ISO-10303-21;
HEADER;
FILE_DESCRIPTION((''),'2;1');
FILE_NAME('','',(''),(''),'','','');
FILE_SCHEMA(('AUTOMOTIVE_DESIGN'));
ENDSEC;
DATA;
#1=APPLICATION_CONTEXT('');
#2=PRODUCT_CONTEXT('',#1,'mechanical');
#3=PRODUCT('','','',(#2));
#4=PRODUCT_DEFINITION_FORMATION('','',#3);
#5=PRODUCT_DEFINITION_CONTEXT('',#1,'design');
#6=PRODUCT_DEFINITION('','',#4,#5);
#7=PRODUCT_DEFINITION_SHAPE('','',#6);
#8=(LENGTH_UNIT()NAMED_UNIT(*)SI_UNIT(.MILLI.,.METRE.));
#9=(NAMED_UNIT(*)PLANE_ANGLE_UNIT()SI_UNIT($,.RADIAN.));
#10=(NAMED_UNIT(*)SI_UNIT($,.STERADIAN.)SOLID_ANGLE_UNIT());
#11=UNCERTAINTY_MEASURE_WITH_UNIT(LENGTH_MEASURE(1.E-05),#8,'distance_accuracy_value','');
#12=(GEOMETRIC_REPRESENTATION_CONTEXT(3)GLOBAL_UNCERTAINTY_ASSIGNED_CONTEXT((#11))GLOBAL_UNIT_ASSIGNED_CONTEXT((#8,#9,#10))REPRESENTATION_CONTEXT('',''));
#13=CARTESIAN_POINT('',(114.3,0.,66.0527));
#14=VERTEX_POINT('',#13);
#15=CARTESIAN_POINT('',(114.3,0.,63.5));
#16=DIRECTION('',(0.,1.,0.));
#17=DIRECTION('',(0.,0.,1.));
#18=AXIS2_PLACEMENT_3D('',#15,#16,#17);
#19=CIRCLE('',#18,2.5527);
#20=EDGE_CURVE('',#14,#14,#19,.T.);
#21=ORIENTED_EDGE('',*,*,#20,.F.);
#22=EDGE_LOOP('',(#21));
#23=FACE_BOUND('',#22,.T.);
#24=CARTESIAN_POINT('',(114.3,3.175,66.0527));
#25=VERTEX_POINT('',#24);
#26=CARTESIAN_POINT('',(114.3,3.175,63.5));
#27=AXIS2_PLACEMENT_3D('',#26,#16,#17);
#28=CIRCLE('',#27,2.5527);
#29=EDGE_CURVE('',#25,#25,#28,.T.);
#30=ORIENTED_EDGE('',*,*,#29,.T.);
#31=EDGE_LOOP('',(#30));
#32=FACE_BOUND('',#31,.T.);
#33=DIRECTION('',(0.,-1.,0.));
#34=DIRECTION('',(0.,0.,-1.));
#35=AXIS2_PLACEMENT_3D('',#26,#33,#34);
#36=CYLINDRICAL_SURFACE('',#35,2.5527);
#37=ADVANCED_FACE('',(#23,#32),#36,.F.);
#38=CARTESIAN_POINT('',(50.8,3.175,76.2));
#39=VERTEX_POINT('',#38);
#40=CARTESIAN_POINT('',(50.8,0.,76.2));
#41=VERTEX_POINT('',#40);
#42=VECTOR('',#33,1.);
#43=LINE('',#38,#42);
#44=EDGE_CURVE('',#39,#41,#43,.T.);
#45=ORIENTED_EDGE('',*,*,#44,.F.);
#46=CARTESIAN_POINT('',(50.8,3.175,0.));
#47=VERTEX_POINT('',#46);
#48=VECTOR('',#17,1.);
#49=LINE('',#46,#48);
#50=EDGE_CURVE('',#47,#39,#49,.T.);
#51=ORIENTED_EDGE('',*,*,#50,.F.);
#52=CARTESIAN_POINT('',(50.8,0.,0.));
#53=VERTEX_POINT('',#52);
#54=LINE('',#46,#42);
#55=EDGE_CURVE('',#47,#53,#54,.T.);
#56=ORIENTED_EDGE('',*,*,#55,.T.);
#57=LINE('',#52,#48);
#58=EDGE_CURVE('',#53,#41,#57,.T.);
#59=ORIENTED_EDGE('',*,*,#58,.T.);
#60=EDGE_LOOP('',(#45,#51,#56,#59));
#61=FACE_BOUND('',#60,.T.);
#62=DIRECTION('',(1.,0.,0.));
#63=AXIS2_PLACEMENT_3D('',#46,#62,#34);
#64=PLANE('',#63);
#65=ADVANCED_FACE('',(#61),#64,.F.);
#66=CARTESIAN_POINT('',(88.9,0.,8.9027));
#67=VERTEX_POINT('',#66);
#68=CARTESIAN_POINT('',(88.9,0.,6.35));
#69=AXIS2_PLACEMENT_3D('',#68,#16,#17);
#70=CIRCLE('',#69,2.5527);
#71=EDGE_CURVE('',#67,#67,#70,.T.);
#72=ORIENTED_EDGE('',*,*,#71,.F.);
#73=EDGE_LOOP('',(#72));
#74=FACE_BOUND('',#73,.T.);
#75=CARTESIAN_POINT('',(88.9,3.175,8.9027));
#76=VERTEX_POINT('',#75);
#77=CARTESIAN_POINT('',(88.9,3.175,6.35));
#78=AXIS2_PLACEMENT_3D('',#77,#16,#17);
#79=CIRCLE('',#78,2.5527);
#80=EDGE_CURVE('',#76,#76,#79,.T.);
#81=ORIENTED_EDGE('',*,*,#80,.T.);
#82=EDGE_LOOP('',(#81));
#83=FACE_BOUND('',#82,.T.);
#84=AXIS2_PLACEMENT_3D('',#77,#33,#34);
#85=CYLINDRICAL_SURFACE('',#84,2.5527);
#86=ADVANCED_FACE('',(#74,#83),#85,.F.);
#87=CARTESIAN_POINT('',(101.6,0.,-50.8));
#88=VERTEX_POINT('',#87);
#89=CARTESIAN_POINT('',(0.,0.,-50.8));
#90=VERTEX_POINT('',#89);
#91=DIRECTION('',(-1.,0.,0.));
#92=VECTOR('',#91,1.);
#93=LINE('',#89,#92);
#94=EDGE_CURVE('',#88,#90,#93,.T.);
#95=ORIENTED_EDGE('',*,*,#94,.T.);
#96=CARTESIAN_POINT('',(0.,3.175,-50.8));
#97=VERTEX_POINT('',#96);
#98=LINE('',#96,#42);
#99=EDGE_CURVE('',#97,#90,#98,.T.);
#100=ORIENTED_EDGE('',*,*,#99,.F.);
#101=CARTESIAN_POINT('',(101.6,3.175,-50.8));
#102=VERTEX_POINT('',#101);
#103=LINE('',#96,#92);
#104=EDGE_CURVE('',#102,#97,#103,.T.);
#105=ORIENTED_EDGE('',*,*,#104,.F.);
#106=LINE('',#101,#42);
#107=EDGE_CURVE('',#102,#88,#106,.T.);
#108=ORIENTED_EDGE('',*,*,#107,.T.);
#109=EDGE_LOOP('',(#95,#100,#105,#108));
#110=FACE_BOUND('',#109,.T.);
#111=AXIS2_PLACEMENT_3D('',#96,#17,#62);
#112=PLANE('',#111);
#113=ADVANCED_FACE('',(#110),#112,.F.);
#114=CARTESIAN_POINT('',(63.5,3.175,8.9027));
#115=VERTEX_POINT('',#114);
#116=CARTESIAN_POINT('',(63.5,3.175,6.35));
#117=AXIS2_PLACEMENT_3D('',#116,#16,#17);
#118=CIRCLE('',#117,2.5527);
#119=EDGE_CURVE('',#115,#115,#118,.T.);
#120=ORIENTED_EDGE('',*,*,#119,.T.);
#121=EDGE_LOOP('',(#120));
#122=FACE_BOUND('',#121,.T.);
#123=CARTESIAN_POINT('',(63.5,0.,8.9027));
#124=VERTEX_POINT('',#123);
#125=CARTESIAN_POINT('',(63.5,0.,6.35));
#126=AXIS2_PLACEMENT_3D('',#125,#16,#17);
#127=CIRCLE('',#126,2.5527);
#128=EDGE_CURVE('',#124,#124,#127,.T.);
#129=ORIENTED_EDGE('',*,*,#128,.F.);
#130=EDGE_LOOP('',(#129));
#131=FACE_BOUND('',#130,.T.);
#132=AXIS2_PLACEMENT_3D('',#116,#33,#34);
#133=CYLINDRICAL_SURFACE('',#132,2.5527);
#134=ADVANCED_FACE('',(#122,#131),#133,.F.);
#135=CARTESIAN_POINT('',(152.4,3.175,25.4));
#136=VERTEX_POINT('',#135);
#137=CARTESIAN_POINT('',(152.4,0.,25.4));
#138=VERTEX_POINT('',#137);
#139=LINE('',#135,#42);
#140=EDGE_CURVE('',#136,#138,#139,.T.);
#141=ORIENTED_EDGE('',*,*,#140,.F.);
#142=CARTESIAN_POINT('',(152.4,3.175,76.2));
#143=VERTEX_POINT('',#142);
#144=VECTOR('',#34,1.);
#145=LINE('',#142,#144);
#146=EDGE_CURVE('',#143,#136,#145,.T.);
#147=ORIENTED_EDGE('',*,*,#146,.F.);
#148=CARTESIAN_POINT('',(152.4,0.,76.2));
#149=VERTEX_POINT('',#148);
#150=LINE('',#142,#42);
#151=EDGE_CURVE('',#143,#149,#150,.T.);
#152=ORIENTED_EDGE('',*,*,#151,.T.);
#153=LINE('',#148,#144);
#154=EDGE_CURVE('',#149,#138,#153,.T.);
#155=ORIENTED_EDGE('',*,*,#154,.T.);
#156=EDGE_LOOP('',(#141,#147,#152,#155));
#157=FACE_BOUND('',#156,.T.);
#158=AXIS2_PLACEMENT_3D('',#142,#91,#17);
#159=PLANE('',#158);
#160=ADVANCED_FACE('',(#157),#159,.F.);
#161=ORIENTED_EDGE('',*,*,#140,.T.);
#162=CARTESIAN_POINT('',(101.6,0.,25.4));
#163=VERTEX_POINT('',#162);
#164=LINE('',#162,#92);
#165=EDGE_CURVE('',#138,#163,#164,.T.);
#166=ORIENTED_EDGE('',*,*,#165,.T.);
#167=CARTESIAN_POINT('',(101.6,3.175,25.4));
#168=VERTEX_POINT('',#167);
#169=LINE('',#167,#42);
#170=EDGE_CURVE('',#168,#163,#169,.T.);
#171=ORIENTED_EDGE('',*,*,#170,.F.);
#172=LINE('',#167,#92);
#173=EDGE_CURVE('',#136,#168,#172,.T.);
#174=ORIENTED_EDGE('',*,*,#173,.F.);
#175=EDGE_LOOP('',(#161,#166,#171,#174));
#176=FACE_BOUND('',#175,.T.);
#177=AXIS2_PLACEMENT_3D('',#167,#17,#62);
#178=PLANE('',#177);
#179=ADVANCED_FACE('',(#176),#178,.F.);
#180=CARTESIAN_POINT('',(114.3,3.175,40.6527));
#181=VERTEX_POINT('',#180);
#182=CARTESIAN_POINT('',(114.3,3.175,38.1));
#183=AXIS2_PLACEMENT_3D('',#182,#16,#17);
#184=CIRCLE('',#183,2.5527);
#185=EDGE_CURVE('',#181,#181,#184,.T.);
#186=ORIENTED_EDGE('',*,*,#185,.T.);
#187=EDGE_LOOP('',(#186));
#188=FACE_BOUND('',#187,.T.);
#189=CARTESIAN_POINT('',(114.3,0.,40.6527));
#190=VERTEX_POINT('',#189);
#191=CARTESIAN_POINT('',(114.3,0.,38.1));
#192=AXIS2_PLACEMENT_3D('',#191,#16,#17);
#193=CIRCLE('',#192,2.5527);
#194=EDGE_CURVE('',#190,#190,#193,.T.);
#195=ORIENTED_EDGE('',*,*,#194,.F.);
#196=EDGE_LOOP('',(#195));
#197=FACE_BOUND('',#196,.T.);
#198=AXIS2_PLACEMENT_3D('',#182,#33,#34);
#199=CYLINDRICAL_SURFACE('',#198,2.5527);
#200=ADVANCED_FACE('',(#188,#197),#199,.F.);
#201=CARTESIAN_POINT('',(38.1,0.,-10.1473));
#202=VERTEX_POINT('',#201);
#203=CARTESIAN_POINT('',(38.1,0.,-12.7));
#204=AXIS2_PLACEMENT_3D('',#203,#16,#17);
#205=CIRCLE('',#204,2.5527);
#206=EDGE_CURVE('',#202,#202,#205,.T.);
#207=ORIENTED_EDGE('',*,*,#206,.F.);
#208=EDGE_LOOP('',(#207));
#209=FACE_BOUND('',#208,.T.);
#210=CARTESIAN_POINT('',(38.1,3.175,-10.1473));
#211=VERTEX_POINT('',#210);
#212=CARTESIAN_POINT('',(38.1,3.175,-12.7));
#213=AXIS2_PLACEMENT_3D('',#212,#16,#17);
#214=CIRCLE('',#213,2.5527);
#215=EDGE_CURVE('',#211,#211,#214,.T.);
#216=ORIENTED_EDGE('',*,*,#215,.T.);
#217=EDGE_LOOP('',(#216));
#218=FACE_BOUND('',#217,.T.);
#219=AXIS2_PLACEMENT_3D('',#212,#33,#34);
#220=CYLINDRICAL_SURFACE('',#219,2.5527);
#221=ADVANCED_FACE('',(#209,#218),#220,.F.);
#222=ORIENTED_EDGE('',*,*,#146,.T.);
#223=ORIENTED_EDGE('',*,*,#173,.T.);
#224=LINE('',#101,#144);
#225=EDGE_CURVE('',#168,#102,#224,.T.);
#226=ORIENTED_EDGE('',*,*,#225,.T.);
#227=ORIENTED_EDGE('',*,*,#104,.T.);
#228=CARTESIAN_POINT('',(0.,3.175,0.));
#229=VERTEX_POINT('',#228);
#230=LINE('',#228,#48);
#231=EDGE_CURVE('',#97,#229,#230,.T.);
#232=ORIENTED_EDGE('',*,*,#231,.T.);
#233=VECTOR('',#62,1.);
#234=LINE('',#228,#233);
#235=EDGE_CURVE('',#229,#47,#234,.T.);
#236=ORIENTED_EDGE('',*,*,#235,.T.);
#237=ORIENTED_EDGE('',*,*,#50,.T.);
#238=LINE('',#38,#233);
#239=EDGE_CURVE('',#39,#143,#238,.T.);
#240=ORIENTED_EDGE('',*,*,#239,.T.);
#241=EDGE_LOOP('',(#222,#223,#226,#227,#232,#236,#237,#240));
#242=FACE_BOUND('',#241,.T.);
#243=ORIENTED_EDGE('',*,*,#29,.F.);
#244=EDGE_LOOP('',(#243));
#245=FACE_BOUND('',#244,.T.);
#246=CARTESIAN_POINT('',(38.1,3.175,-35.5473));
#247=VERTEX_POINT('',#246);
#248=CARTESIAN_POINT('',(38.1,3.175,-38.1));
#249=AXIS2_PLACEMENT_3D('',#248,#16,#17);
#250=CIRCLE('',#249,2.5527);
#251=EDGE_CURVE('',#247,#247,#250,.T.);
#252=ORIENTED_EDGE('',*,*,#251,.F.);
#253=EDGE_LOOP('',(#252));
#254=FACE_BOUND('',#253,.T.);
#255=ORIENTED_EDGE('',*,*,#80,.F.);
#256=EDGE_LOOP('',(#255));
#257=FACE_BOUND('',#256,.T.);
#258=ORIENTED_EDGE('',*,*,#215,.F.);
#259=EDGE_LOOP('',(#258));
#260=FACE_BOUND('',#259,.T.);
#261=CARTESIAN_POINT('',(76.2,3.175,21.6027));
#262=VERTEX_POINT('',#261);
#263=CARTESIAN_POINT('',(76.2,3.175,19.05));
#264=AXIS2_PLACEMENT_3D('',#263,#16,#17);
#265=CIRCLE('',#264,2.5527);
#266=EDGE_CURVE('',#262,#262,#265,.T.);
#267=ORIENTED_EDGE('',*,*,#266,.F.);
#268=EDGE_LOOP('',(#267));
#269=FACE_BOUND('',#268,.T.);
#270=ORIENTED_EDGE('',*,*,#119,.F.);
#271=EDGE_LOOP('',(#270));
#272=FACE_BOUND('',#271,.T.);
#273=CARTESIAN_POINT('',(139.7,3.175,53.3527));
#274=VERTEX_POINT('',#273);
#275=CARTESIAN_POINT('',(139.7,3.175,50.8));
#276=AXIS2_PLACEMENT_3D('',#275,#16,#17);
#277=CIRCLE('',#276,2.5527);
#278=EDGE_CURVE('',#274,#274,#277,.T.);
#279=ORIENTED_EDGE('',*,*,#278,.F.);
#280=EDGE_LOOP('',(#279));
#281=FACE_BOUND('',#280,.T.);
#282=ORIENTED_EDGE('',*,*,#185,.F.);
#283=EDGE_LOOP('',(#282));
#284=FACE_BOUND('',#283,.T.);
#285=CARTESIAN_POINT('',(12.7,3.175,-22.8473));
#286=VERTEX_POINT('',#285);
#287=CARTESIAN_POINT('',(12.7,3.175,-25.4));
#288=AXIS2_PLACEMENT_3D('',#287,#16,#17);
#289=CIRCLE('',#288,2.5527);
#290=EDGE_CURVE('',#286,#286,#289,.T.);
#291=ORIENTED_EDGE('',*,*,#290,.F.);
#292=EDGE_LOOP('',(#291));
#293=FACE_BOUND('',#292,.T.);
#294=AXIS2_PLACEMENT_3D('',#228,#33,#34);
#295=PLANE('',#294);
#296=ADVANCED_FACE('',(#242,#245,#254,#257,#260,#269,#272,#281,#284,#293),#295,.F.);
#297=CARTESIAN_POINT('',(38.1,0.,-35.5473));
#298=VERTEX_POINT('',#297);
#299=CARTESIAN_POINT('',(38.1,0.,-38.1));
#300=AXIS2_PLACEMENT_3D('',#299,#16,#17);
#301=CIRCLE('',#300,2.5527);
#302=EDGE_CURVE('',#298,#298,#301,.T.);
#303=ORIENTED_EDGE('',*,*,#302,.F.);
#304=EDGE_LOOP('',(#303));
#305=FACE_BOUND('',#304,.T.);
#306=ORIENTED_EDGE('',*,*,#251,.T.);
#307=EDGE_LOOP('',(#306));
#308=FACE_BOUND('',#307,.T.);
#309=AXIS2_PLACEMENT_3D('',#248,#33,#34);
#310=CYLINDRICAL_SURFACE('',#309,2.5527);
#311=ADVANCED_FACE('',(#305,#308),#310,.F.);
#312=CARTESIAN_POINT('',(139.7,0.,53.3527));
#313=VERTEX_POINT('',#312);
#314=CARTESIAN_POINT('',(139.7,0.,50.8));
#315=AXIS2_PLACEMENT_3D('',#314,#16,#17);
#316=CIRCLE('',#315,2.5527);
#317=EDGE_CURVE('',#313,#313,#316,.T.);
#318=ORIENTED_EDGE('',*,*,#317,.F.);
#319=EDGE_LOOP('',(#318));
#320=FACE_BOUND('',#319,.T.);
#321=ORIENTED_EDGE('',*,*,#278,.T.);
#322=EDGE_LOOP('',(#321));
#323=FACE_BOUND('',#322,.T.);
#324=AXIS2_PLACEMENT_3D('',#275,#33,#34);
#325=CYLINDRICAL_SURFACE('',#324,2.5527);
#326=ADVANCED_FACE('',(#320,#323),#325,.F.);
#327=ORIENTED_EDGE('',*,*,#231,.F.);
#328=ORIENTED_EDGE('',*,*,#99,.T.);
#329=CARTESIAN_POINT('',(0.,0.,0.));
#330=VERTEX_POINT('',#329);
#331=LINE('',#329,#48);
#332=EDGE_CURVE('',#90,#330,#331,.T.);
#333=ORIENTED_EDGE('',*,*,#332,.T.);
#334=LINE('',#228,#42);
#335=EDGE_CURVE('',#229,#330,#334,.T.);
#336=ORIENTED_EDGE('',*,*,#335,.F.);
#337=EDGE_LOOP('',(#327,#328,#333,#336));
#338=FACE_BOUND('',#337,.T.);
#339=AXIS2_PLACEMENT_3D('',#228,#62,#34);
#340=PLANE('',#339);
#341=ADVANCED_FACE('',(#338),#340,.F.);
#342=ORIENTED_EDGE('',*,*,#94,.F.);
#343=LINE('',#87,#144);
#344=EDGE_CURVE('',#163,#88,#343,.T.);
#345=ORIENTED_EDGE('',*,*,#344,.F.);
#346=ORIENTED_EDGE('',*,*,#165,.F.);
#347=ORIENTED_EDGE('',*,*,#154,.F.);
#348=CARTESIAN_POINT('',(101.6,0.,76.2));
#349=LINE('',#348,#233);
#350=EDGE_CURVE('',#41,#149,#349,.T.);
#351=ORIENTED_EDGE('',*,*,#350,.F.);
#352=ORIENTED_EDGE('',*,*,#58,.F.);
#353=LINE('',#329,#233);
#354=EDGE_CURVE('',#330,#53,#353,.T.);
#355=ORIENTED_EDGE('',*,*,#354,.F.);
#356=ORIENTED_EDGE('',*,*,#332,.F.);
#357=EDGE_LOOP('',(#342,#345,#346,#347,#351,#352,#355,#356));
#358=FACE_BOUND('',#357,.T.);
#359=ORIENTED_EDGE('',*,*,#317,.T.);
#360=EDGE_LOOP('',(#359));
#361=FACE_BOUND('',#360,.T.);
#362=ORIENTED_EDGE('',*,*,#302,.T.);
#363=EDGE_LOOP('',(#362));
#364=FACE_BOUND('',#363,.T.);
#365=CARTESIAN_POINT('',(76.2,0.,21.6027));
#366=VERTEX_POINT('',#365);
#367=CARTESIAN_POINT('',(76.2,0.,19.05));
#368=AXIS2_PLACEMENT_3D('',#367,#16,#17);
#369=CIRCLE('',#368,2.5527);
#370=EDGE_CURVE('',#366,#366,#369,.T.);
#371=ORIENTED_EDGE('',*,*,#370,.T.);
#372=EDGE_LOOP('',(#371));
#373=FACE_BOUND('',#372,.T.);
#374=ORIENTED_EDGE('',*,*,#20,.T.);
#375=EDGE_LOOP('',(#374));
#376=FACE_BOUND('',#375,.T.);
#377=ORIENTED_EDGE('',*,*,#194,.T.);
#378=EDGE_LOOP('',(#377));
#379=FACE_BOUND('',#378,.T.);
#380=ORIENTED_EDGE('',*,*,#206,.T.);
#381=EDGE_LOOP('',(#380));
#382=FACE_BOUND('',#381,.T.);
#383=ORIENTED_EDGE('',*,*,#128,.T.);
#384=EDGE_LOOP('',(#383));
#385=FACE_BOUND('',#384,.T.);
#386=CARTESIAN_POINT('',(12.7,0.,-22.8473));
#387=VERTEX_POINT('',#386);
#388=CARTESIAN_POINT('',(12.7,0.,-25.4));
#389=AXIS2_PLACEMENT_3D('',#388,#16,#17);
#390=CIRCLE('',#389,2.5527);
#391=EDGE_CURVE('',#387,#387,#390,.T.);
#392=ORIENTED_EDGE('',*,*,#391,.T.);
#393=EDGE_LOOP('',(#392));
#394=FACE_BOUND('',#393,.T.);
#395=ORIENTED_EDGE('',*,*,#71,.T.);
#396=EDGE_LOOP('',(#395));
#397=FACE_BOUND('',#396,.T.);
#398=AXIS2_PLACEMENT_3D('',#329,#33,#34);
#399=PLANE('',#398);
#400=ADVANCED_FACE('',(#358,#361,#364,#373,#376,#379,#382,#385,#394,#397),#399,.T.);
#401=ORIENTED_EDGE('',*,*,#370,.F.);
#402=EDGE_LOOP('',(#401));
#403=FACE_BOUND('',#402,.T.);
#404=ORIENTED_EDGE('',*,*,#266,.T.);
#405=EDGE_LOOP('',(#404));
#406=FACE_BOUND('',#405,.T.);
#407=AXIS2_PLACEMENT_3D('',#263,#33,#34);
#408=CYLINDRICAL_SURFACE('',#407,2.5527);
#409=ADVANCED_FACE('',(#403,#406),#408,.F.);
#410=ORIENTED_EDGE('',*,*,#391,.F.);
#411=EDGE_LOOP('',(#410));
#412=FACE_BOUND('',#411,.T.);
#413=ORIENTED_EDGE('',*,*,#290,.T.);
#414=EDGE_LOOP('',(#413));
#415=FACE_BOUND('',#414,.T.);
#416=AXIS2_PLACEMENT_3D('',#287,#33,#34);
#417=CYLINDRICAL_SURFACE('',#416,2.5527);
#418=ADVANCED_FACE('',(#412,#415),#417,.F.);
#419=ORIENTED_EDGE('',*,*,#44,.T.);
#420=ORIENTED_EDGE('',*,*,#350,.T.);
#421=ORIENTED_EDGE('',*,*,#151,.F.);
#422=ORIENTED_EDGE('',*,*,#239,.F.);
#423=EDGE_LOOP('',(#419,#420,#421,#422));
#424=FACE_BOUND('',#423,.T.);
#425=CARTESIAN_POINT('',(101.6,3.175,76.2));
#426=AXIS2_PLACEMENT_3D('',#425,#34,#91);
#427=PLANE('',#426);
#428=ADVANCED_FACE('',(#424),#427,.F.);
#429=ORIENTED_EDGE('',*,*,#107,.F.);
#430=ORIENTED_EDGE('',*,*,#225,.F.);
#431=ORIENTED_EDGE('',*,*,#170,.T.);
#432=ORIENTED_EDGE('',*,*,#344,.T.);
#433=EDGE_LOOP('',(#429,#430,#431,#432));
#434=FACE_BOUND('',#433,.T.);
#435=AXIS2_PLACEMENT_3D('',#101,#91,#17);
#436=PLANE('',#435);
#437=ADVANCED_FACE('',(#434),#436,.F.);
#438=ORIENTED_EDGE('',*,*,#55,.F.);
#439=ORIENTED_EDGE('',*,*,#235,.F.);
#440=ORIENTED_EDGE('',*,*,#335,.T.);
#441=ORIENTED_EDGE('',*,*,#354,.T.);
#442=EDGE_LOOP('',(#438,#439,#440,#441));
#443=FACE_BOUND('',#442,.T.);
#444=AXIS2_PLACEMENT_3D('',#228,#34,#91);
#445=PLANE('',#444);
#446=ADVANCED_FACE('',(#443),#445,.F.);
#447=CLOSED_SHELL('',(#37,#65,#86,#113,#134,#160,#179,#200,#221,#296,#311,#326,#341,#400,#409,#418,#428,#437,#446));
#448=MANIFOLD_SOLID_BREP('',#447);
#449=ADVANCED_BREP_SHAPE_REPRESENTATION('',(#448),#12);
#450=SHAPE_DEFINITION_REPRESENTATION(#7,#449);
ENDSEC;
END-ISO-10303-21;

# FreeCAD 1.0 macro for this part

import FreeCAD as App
import Part
import Sketcher

V = App.Vector
Q = App.Units.Quantity


def add_polygon(sketch, points):
    """Adds a closed chain of lines whose ends are joined by coincident constraints."""
    first, n = sketch.GeometryCount, len(points)
    for a, b in zip(points, points[1:] + points[:1]):
        sketch.addGeometry(Part.LineSegment(App.Vector(*a, 0), App.Vector(*b, 0)), False)
    for i in range(n):
        sketch.addConstraint(Sketcher.Constraint("Coincident", first + i, 2, first + (i + 1) % n, 1))

doc = App.newDocument("Part")
params = doc.addObject("Spreadsheet::Sheet", "Params")
for row, (alias, value) in enumerate([
    ("sketch1_width", "2 in"),
    ("sketch1_width2", "4 in"),
    ("sketch1_height", "3 in"),
    ("sketch1_diameter", "0.201 in"),
    ("pad1_length", "0.125 in"),
], start=1):
    params.set(f"A{row}", alias)
    params.set(f"B{row}", "=" + value)
    params.setAlias(f"B{row}", alias)

body = doc.addObject("PartDesign::Body", "Body")

# Sketch on XZ plane
sketch1 = body.newObject("Sketcher::SketchObject", "Sketch")
sketch1.AttachmentSupport = (doc.getObject("XZ_Plane"), [""])
sketch1.MapMode = "FlatFace"
add_polygon(sketch1, [(0, 0), (50.8, 0), (50.8, 76.2), (152.4, 76.2), (152.4, 25.4), (101.6, 25.4), (101.6, -50.8), (0, -50.8)])  # lines 0-7
sketch1.addGeometry(Part.Circle(V(114.3, 63.5, 0), V(0, 0, 1), 2.6), False)  # 8
sketch1.addGeometry(Part.Circle(V(139.7, 50.8, 0), V(0, 0, 1), 2.6), False)  # 9
sketch1.addGeometry(Part.Circle(V(76.2, 19.1, 0), V(0, 0, 1), 2.6), False)  # 10
sketch1.addGeometry(Part.Circle(V(114.3, 38.1, 0), V(0, 0, 1), 2.6), False)  # 11
sketch1.addGeometry(Part.Circle(V(38.1, -12.7, 0), V(0, 0, 1), 2.6), False)  # 12
sketch1.addGeometry(Part.Circle(V(63.5, 6.3, 0), V(0, 0, 1), 2.6), False)  # 13
sketch1.addGeometry(Part.Circle(V(12.7, -25.4, 0), V(0, 0, 1), 2.6), False)  # 14
sketch1.addGeometry(Part.Circle(V(38.1, -38.1, 0), V(0, 0, 1), 2.6), False)  # 15
sketch1.addGeometry(Part.Circle(V(88.9, 6.3, 0), V(0, 0, 1), 2.6), False)  # 16
sketch1.addConstraint([
    Sketcher.Constraint("Horizontal", 0),
    Sketcher.Constraint("Vertical", 1),
    Sketcher.Constraint("Horizontal", 2),
    Sketcher.Constraint("Vertical", 3),
    Sketcher.Constraint("Horizontal", 4),
    Sketcher.Constraint("Vertical", 5),
    Sketcher.Constraint("Horizontal", 6),
    Sketcher.Constraint("Vertical", 7),
    Sketcher.Constraint("Coincident", 7, 2, -1, 1),
    Sketcher.Constraint("Equal", 8, 9),
    Sketcher.Constraint("Equal", 9, 10),
    Sketcher.Constraint("Equal", 10, 11),
    Sketcher.Constraint("Equal", 11, 12),
    Sketcher.Constraint("Equal", 12, 13),
    Sketcher.Constraint("Equal", 13, 14),
    Sketcher.Constraint("Equal", 14, 15),
    Sketcher.Constraint("Equal", 15, 16),
    Sketcher.Constraint("Horizontal", 13, 3, 16, 3),
    Sketcher.Constraint("Vertical", 8, 3, 11, 3),
    Sketcher.Constraint("Vertical", 12, 3, 15, 3),
    Sketcher.Constraint("Equal", 0, 4),
    Sketcher.Constraint("Equal", 4, 3),
    Sketcher.Constraint("Equal", 1, 5),
    Sketcher.Constraint("DistanceX", 0, 1, 0, 2, Q("2 in")),
    Sketcher.Constraint("DistanceX", 2, 1, 2, 2, Q("4 in")),
    Sketcher.Constraint("DistanceY", 1, 1, 1, 2, Q("3 in")),
    Sketcher.Constraint("Diameter", 8, Q("0.201 in")),
    Sketcher.Constraint("DistanceY", -1, 1, 9, 3, Q("2 in")),
    Sketcher.Constraint("DistanceX", -1, 1, 10, 3, Q("3 in")),
    Sketcher.Constraint("DistanceY", 14, 3, -1, 1, Q("1 in")),
    Sketcher.Constraint("DistanceX", 8, 3, 9, 3, Q("1 in")),
    Sketcher.Constraint("DistanceY", 11, 3, 8, 3, Q("1 in")),
    Sketcher.Constraint("DistanceX", 12, 3, 11, 3, Q("3 in")),
    Sketcher.Constraint("DistanceY", 12, 3, 11, 3, Q("2 in")),
    Sketcher.Constraint("DistanceX", 12, 3, 13, 3, Q("1 in")),
    Sketcher.Constraint("DistanceX", 14, 3, 12, 3, Q("1 in")),
    Sketcher.Constraint("DistanceY", 15, 3, 12, 3, Q("1 in")),
    Sketcher.Constraint("DistanceX", 13, 3, 16, 3, Q("1 in")),
    Sketcher.Constraint("DistanceX", -1, 1, 8, 3, Q("4.5 in")),
    Sketcher.Constraint("DistanceY", -1, 1, 8, 3, Q("2.5 in")),
    Sketcher.Constraint("DistanceY", 13, 3, 10, 3, Q("0.5 in")),
    Sketcher.Constraint("DistanceY", -1, 1, 10, 3, Q("0.75 in")),
])
sketch1.setExpression("Constraints[31]", "Params.sketch1_width")
sketch1.setExpression("Constraints[32]", "Params.sketch1_width2")
sketch1.setExpression("Constraints[33]", "Params.sketch1_height")
sketch1.setExpression("Constraints[34]", "Params.sketch1_diameter")
pad1 = body.newObject("PartDesign::Pad", "Pad")
pad1.Profile = sketch1
pad1.setExpression("Length", "Params.pad1_length")
pad1.Reversed = True

doc.recompute()
